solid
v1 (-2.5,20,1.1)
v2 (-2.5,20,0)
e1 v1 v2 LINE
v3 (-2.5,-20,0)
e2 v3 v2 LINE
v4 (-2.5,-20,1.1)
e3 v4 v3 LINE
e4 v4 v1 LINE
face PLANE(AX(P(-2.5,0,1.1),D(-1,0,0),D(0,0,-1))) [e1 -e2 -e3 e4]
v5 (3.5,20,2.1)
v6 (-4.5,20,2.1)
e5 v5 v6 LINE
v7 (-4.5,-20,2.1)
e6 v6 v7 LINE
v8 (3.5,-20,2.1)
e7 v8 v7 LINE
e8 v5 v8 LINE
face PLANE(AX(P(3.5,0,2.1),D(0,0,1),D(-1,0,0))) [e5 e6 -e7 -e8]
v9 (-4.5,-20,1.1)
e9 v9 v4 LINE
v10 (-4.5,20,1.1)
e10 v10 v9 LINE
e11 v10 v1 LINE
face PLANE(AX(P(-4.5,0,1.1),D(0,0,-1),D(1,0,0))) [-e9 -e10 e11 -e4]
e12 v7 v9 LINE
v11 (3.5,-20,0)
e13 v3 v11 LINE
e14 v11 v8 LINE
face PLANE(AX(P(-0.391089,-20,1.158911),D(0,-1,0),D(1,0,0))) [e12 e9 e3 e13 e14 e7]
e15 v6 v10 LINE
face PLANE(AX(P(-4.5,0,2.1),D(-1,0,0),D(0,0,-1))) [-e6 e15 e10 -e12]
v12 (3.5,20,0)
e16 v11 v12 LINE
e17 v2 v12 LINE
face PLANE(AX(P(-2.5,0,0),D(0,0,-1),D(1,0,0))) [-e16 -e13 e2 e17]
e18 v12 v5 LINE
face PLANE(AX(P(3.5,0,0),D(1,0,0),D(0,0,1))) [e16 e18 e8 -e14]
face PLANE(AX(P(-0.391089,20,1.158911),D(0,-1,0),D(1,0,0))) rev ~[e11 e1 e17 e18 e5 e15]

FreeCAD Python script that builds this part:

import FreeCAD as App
import Part
import Sketcher
from FreeCAD import Vector


def add_polygon(sketch, points):
    """Adds a closed chain of lines whose ends are joined by coincident constraints."""
    first, n = sketch.GeometryCount, len(points)
    for a, b in zip(points, points[1:] + points[:1]):
        sketch.addGeometry(Part.LineSegment(App.Vector(*a, 0), App.Vector(*b, 0)), False)
    for i in range(n):
        sketch.addConstraint(Sketcher.Constraint("Coincident", first + i, 2, first + (i + 1) % n, 1))

doc = App.newDocument("Part")
body = doc.addObject("PartDesign::Body", "Body")

# Sketch on XZ plane
sketch1 = body.newObject("Sketcher::SketchObject", "Sketch")
sketch1.AttachmentSupport = (doc.getObject("XZ_Plane"), [""])
sketch1.MapMode = "FlatFace"
add_polygon(sketch1, [(3.5, 0), (3.5, 2.1), (-4.5, 2.1), (-4.5, 1.1), (-2.5, 1.1), (-2.5, 0)])  # lines 0-5
sketch1.addConstraint([
    Sketcher.Constraint("Vertical", 0),
    Sketcher.Constraint("Horizontal", 1),
    Sketcher.Constraint("Vertical", 2),
    Sketcher.Constraint("Horizontal", 3),
    Sketcher.Constraint("Vertical", 4),
    Sketcher.Constraint("Horizontal", 5),
    Sketcher.Constraint("PointOnObject", 4, 2, -1),
    Sketcher.Constraint("DistanceX", 1, 2, 1, 1, 8.0),
    Sketcher.Constraint("DistanceX", 3, 1, 3, 2, 2.0),
    Sketcher.Constraint("DistanceY", 2, 2, 2, 1, 1.0),
    Sketcher.Constraint("DistanceY", 0, 1, 0, 2, 2.1),
    Sketcher.Constraint("DistanceX", -1, 1, 0, 2, 3.5),
])
pad1 = body.newObject("PartDesign::Pad", "Pad")
pad1.Profile = sketch1
pad1.Length = 40
pad1.Midplane = True

doc.recompute()
